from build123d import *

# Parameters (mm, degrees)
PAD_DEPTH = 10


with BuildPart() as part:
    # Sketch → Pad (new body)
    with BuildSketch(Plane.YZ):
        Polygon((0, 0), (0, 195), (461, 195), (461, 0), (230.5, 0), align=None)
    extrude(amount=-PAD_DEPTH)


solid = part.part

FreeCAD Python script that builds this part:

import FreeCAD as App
import Part
import Sketcher

V = App.Vector

doc = App.newDocument("Part")
params = doc.addObject("Spreadsheet::Sheet", "Params")
for row, (alias, value) in enumerate([
    ("sketch1_width", "461 mm"),
    ("sketch1_height", "195 mm"),
    ("pad1_length", "10 mm"),
], start=1):
    params.set(f"A{row}", alias)
    params.set(f"B{row}", "=" + value)
    params.setAlias(f"B{row}", alias)

body = doc.addObject("PartDesign::Body", "Body")

# Sketch on YZ plane
sketch1 = doc.addObject("Sketcher::SketchObject", "Sketch")
body.addObject(sketch1)
sketch1.AttachmentSupport = (doc.YZ_Plane, [""])
sketch1.MapMode = "FlatFace"
sketch1.addGeometry([
    Part.LineSegment(V(0, 195, 0), V(0, 0, 0)),
    Part.LineSegment(V(0, 0, 0), V(461, 0, 0)),
    Part.LineSegment(V(461, 0, 0), V(461, 195, 0)),
    Part.LineSegment(V(461, 195, 0), V(0, 195, 0)),
], False)
sketch1.addConstraint([
    Sketcher.Constraint("Coincident", 0, 2, 1, 1),
    Sketcher.Constraint("Coincident", 1, 2, 2, 1),
    Sketcher.Constraint("Coincident", 2, 2, 3, 1),
    Sketcher.Constraint("Coincident", 3, 2, 0, 1),
    Sketcher.Constraint("Vertical", 0),
    Sketcher.Constraint("Horizontal", 1),
    Sketcher.Constraint("Vertical", 2),
    Sketcher.Constraint("Horizontal", 3),
    Sketcher.Constraint("Coincident", 0, 2, -1, 1),
    Sketcher.Constraint("DistanceX", 1, 1, 1, 2, 461.0),
    Sketcher.Constraint("DistanceY", 0, 2, 0, 1, 195.0),
])
sketch1.setExpression("Constraints[9]", "Params.sketch1_width")
sketch1.setExpression("Constraints[10]", "Params.sketch1_height")
pad1 = doc.addObject("PartDesign::Pad", "Pad")
body.addObject(pad1)
pad1.Profile = sketch1
pad1.setExpression("Length", "Params.pad1_length")
pad1.Reversed = True

doc.recompute()
